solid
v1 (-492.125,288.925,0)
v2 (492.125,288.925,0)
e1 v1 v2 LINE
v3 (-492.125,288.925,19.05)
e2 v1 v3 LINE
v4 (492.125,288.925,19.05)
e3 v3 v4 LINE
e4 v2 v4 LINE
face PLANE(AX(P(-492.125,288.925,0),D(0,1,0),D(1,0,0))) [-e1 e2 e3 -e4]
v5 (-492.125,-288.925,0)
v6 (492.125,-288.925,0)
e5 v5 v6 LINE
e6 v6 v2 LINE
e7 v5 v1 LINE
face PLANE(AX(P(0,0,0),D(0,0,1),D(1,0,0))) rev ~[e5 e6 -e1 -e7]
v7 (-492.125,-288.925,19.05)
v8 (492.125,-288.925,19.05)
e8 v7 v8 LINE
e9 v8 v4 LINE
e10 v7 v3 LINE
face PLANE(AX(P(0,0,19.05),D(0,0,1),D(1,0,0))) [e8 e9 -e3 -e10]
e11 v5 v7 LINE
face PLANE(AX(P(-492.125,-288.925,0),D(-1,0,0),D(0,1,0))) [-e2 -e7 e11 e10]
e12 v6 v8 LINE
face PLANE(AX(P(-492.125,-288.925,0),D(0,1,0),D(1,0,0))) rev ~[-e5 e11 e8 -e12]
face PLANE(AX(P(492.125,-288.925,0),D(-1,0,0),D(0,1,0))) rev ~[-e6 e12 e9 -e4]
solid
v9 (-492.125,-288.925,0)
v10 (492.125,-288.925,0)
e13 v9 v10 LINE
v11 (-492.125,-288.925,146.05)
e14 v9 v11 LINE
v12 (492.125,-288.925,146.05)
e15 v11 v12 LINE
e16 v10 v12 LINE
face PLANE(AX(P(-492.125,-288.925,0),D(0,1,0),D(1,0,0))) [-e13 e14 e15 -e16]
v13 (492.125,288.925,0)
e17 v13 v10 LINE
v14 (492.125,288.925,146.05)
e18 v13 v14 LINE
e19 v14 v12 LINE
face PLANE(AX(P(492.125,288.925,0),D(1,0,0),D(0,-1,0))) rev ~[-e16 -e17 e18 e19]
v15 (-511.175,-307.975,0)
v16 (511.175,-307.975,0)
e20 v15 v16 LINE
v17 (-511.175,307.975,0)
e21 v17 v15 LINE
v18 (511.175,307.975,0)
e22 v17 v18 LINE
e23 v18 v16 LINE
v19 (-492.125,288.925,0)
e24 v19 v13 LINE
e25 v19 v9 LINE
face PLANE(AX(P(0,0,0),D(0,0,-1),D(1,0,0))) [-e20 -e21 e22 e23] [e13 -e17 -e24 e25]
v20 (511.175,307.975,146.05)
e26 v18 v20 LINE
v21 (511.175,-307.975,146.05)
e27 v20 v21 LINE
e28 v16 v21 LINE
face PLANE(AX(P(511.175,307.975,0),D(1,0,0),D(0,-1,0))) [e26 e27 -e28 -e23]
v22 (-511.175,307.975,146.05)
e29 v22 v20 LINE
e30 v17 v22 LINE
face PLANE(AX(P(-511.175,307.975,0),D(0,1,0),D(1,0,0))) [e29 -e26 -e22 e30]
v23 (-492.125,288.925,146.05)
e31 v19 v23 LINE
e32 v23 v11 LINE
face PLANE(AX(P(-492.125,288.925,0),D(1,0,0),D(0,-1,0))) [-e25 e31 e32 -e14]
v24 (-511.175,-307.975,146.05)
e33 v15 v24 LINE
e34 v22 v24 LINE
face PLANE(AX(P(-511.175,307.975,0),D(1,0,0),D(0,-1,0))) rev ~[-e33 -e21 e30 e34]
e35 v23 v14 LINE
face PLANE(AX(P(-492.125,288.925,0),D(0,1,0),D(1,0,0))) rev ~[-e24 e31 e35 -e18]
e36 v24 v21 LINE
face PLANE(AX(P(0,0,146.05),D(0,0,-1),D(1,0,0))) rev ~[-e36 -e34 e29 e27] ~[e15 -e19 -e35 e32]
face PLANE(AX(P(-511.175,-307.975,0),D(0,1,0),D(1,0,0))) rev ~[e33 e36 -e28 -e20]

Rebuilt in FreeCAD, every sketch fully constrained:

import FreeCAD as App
import Part
import Sketcher

V = App.Vector
Q = App.Units.Quantity


def add_polygon(sketch, points):
    """Adds a closed chain of lines whose ends are joined by coincident constraints."""
    first, n = sketch.GeometryCount, len(points)
    for a, b in zip(points, points[1:] + points[:1]):
        sketch.addGeometry(Part.LineSegment(App.Vector(*a, 0), App.Vector(*b, 0)), False)
    for i in range(n):
        sketch.addConstraint(Sketcher.Constraint("Coincident", first + i, 2, first + (i + 1) % n, 1))

doc = App.newDocument("Part")
params = doc.addObject("Spreadsheet::Sheet", "Params")
for row, (alias, value) in enumerate([
    ("sketch1_width", "38.75 in"),
    ("sketch1_height", "22.75 in"),
    ("pad1_length", "0.75 in"),
    ("sketch2_width", "40.25 in"),
    ("sketch2_width2", "38.75 in"),
    ("sketch2_height", "24.25 in"),
    ("sketch2_height2", "22.75 in"),
    ("pad2_length", "5.75 in"),
], start=1):
    params.set(f"A{row}", alias)
    params.set(f"B{row}", "=" + value)
    params.setAlias(f"B{row}", alias)

body = doc.addObject("PartDesign::Body", "Body")

# Sketch on XY plane
sketch1 = body.newObject("Sketcher::SketchObject", "Sketch")
sketch1.AttachmentSupport = (doc.getObject("XY_Plane"), [""])
sketch1.MapMode = "FlatFace"
add_polygon(sketch1, [(-492, 289), (-492, -289), (492, -289), (492, 289)])  # lines 0-3
sketch1.addConstraint(Sketcher.Constraint("Vertical", 0))
sketch1.addConstraint(Sketcher.Constraint("Horizontal", 1))
sketch1.addConstraint(Sketcher.Constraint("Vertical", 2))
sketch1.addConstraint(Sketcher.Constraint("Horizontal", 3))
sketch1.addConstraint(Sketcher.Constraint("Symmetric", 0, 2, 2, 2, -1, 1))
sketch1.addConstraint(Sketcher.Constraint("DistanceX", 1, 1, 1, 2, Q("38.75 in")))
sketch1.addConstraint(Sketcher.Constraint("DistanceY", 0, 2, 0, 1, Q("22.75 in")))
sketch1.setExpression("Constraints[9]", "Params.sketch1_width")
sketch1.setExpression("Constraints[10]", "Params.sketch1_height")
pad1 = body.newObject("PartDesign::Pad", "Pad")
pad1.Profile = sketch1
pad1.setExpression("Length", "Params.pad1_length")
body2 = doc.addObject("PartDesign::Body", "Body001")

# Sketch on XY plane
sketch2 = body2.newObject("Sketcher::SketchObject", "Sketch001")
sketch2.AttachmentSupport = (doc.getObject("XY_Plane001"), [""])
sketch2.MapMode = "FlatFace"
add_polygon(sketch2, [(-511, -308), (-511, 308), (511, 308), (511, -308)])  # lines 0-3
add_polygon(sketch2, [(492, 289), (-492, 289), (-492, -289), (492, -289)])  # lines 4-7
sketch2.addConstraint(Sketcher.Constraint("Vertical", 0))
sketch2.addConstraint(Sketcher.Constraint("Horizontal", 1))
sketch2.addConstraint(Sketcher.Constraint("Vertical", 2))
sketch2.addConstraint(Sketcher.Constraint("Horizontal", 3))
sketch2.addConstraint(Sketcher.Constraint("Horizontal", 4))
sketch2.addConstraint(Sketcher.Constraint("Vertical", 5))
sketch2.addConstraint(Sketcher.Constraint("Horizontal", 6))
sketch2.addConstraint(Sketcher.Constraint("Vertical", 7))
sketch2.addConstraint(Sketcher.Constraint("Symmetric", 0, 2, 2, 2, -1, 1))
sketch2.addConstraint(Sketcher.Constraint("Symmetric", 4, 2, 6, 2, -1, 1))
sketch2.addConstraint(Sketcher.Constraint("DistanceX", 1, 1, 1, 2, Q("40.25 in")))
sketch2.addConstraint(Sketcher.Constraint("DistanceX", 4, 2, 4, 1, Q("38.75 in")))
sketch2.addConstraint(Sketcher.Constraint("DistanceY", 0, 1, 0, 2, Q("24.25 in")))
sketch2.addConstraint(Sketcher.Constraint("DistanceY", 5, 2, 5, 1, Q("22.75 in")))
sketch2.setExpression("Constraints[18]", "Params.sketch2_width")
sketch2.setExpression("Constraints[19]", "Params.sketch2_width2")
sketch2.setExpression("Constraints[20]", "Params.sketch2_height")
sketch2.setExpression("Constraints[21]", "Params.sketch2_height2")
pad2 = body2.newObject("PartDesign::Pad", "Pad001")
pad2.Profile = sketch2
pad2.setExpression("Length", "Params.pad2_length")

doc.recompute()
